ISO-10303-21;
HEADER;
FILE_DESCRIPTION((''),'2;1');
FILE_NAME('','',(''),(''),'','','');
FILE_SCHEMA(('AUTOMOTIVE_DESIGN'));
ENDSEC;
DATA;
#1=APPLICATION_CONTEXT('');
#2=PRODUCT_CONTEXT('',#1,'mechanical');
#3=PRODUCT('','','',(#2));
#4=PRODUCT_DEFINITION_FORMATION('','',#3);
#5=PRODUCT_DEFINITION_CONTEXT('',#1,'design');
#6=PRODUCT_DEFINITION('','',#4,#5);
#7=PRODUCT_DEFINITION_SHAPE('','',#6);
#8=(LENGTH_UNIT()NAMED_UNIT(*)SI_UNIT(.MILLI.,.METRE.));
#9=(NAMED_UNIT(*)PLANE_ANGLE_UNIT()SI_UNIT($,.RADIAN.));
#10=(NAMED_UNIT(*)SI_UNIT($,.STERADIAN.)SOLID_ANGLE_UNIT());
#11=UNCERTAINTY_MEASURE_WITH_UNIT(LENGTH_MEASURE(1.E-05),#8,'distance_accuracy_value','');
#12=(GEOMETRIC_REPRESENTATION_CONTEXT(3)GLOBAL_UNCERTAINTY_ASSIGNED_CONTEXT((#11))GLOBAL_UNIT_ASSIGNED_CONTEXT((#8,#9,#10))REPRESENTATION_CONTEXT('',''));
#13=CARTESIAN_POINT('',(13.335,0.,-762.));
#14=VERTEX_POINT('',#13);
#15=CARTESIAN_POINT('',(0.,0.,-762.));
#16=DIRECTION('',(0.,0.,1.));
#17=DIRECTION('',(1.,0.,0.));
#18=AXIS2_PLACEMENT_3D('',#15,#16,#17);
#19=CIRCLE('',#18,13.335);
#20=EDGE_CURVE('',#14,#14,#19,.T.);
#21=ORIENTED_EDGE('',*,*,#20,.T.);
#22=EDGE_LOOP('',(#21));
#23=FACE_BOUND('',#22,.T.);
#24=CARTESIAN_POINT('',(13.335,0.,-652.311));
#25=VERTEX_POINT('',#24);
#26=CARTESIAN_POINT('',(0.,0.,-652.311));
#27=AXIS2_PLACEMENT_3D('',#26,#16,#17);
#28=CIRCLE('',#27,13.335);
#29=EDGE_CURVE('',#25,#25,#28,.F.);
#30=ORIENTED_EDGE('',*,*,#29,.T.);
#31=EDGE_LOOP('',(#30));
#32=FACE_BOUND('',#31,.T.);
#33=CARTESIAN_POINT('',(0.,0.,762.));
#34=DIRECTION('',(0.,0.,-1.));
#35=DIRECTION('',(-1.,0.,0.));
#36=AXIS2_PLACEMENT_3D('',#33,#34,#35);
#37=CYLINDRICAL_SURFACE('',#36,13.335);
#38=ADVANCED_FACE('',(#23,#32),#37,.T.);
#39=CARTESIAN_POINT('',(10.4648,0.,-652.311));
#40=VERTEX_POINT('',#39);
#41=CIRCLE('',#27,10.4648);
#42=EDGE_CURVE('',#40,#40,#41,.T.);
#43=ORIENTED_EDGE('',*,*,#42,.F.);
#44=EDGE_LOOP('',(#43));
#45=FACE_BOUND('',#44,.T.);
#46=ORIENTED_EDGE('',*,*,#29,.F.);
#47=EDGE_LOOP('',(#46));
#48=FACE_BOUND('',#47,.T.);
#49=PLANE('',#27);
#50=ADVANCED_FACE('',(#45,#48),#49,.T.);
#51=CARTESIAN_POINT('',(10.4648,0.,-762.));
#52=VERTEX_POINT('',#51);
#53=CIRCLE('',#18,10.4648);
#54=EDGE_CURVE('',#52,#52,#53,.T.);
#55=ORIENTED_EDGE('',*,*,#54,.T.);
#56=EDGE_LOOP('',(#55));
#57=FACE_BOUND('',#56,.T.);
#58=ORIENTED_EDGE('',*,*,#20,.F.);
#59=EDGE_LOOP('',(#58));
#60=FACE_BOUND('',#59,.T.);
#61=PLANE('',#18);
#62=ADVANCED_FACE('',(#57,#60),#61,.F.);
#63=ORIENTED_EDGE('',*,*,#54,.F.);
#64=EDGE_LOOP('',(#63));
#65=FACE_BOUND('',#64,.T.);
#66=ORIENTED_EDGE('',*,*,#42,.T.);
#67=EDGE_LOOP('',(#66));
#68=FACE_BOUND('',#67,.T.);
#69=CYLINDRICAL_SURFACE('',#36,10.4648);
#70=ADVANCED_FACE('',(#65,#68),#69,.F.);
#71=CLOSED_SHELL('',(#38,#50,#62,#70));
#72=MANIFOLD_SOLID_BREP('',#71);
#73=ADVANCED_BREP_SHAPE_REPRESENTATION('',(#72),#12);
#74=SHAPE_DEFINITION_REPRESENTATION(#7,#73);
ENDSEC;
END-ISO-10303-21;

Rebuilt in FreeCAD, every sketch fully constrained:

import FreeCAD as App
import Part
import Sketcher

V = App.Vector
Q = App.Units.Quantity

doc = App.newDocument("Part")
body = doc.addObject("PartDesign::Body", "Body")

# Sketch on XY plane
sketch1 = doc.addObject("Sketcher::SketchObject", "Sketch")
body.addObject(sketch1)
sketch1.AttachmentSupport = (doc.XY_Plane, [""])
sketch1.MapMode = "FlatFace"
sketch1.addGeometry([
    Part.Circle(V(0, 0, 0), V(0, 0, 1), 13.335),
    Part.Circle(V(0, 0, 0), V(0, 0, 1), 10.4648),
], False)
sketch1.addConstraint([
    Sketcher.Constraint("Coincident", 0, 3, -1, 1),
    Sketcher.Constraint("Coincident", 1, 3, -1, 1),
    Sketcher.Constraint("Diameter", 0, Q("1.05 in")),
    Sketcher.Constraint("Diameter", 1, Q("0.824 in")),
])
pad1 = doc.addObject("PartDesign::Pad", "Pad")
body.addObject(pad1)
pad1.Profile = sketch1
pad1.Type = "TwoLengths"
pad1.Length = Q("30 in")
pad1.Length2 = Q("30 in")

# Sketch on XY plane
sketch2 = doc.addObject("Sketcher::SketchObject", "Sketch001")
body.addObject(sketch2)
sketch2.AttachmentSupport = (doc.XY_Plane, [""])
sketch2.MapMode = "FlatFace"
sketch2.AttachmentOffset = App.Placement(V(0, 0, 30 * 25.4), App.Rotation())
sketch2.addGeometry(Part.Circle(V(0, 0, 0), V(0, 0, 1), 13.335), False)
sketch2.addConstraint([
    Sketcher.Constraint("Coincident", 0, 3, -1, 1),
    Sketcher.Constraint("Diameter", 0, Q("1.05 in")),
])
pocket1 = doc.addObject("PartDesign::Pocket", "Pocket")
body.addObject(pocket1)
pocket1.Profile = sketch2
pocket1.Length = 1414.311

doc.recompute()
